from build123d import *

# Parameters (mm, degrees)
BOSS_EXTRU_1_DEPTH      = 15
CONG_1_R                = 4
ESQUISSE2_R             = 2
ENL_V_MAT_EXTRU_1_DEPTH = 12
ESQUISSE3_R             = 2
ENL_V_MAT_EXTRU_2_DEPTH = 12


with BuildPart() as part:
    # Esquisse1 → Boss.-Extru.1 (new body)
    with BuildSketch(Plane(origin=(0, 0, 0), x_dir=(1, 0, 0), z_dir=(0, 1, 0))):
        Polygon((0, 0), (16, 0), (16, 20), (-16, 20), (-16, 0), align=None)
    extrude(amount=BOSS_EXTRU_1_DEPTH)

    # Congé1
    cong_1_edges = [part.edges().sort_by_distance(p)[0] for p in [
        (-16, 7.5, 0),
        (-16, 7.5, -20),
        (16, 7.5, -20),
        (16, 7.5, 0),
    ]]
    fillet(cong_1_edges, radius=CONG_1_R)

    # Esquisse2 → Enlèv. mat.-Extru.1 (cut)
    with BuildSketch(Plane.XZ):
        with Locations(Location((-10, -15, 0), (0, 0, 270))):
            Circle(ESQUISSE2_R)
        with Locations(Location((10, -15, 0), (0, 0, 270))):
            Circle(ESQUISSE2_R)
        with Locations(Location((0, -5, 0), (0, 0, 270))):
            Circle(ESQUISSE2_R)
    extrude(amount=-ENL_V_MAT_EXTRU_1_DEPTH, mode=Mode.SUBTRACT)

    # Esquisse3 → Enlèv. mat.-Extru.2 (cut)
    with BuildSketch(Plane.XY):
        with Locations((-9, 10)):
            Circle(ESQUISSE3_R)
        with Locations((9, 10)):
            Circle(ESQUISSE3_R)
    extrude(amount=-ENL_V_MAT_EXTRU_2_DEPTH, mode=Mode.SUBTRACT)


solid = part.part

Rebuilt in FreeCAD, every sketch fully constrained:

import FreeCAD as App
import Part
import Sketcher

V = App.Vector


def edges_at(feature, points):
    """Names of the edges that pass closest to the given points."""
    edges = feature.Shape.Edges
    near = lambda p: min(range(len(edges)), key=lambda i: edges[i].distToShape(Part.Vertex(*p))[0])
    return sorted({f"Edge{near(p) + 1}" for p in points})

doc = App.newDocument("Part")
body = doc.addObject("PartDesign::Body", "Body")

sketch1 = body.newObject("Sketcher::SketchObject", "Sketch")
sketch1.AttachmentSupport = (doc.getObject("XZ_Plane"), [""])
sketch1.MapMode = "FlatFace"
sketch1.addGeometry([
    Part.LineSegment(V(16, 0, 0), V(16, -20, 0)),
    Part.LineSegment(V(16, -20, 0), V(-16, -20, 0)),
    Part.LineSegment(V(-16, -20, 0), V(-16, 0, 0)),
    Part.LineSegment(V(-16, 0, 0), V(16, 0, 0)),
], False)
sketch1.addConstraint([
    Sketcher.Constraint("Coincident", 0, 2, 1, 1),
    Sketcher.Constraint("Coincident", 1, 2, 2, 1),
    Sketcher.Constraint("Coincident", 2, 2, 3, 1),
    Sketcher.Constraint("Coincident", 3, 2, 0, 1),
    Sketcher.Constraint("Vertical", 0),
    Sketcher.Constraint("Horizontal", 1),
    Sketcher.Constraint("Vertical", 2),
    Sketcher.Constraint("Horizontal", 3),
    Sketcher.Constraint("Symmetric", 2, 2, 3, 2, -1, 1),
    Sketcher.Constraint("DistanceX", 1, 2, 1, 1, 32.0),
    Sketcher.Constraint("DistanceY", 0, 2, 0, 1, 20.0),
])
pad1 = body.newObject("PartDesign::Pad", "Pad")
pad1.Profile = sketch1
pad1.Length = 15
pad1.Reversed = True
doc.recompute()

fillet = body.newObject("PartDesign::Fillet", "Fillet")
fillet.Base = (pad1, edges_at(pad1, [
    (-16, 7.5, 0),
    (-16, 7.5, -20),
    (16, 7.5, -20),
    (16, 7.5, 0),
]))
fillet.Radius = 4

sketch2 = body.newObject("Sketcher::SketchObject", "Sketch001")
sketch2.AttachmentSupport = (doc.getObject("XZ_Plane"), [""])
sketch2.MapMode = "FlatFace"
sketch2.addGeometry([
    Part.Circle(V(-10, -15, 0), V(0, 0, 1), 2),
    Part.Circle(V(10, -15, 0), V(0, 0, 1), 2),
    Part.Circle(V(0, -5, 0), V(0, 0, 1), 2),
], False)
sketch2.addConstraint([
    Sketcher.Constraint("Equal", 0, 1),
    Sketcher.Constraint("Equal", 1, 2),
    Sketcher.Constraint("Symmetric", 0, 3, 1, 3, -2),
    Sketcher.Constraint("PointOnObject", 2, 3, -2),
    Sketcher.Constraint("Diameter", 0, 4.0),
    Sketcher.Constraint("DistanceX", 0, 3, -1, 1, 10.0),
    Sketcher.Constraint("DistanceY", 0, 3, -1, 1, 15.0),
    Sketcher.Constraint("DistanceY", 2, 3, -1, 1, 5.0),
])
pocket1 = body.newObject("PartDesign::Pocket", "Pocket")
pocket1.Profile = sketch2
pocket1.Length = 12

sketch3 = body.newObject("Sketcher::SketchObject", "Sketch002")
sketch3.AttachmentSupport = (doc.getObject("XY_Plane"), [""])
sketch3.MapMode = "FlatFace"
sketch3.addGeometry([
    Part.Circle(V(-9, 10, 0), V(0, 0, 1), 2),
    Part.Circle(V(9, 10, 0), V(0, 0, 1), 2),
], False)
sketch3.addConstraint([
    Sketcher.Constraint("Equal", 0, 1),
    Sketcher.Constraint("Symmetric", 0, 3, 1, 3, -2),
    Sketcher.Constraint("Diameter", 0, 4.0),
    Sketcher.Constraint("DistanceX", 0, 3, -1, 1, 9.0),
    Sketcher.Constraint("DistanceY", -1, 1, 0, 3, 10.0),
])
pocket2 = body.newObject("PartDesign::Pocket", "Pocket001")
pocket2.Profile = sketch3
pocket2.Length = 12

doc.recompute()
